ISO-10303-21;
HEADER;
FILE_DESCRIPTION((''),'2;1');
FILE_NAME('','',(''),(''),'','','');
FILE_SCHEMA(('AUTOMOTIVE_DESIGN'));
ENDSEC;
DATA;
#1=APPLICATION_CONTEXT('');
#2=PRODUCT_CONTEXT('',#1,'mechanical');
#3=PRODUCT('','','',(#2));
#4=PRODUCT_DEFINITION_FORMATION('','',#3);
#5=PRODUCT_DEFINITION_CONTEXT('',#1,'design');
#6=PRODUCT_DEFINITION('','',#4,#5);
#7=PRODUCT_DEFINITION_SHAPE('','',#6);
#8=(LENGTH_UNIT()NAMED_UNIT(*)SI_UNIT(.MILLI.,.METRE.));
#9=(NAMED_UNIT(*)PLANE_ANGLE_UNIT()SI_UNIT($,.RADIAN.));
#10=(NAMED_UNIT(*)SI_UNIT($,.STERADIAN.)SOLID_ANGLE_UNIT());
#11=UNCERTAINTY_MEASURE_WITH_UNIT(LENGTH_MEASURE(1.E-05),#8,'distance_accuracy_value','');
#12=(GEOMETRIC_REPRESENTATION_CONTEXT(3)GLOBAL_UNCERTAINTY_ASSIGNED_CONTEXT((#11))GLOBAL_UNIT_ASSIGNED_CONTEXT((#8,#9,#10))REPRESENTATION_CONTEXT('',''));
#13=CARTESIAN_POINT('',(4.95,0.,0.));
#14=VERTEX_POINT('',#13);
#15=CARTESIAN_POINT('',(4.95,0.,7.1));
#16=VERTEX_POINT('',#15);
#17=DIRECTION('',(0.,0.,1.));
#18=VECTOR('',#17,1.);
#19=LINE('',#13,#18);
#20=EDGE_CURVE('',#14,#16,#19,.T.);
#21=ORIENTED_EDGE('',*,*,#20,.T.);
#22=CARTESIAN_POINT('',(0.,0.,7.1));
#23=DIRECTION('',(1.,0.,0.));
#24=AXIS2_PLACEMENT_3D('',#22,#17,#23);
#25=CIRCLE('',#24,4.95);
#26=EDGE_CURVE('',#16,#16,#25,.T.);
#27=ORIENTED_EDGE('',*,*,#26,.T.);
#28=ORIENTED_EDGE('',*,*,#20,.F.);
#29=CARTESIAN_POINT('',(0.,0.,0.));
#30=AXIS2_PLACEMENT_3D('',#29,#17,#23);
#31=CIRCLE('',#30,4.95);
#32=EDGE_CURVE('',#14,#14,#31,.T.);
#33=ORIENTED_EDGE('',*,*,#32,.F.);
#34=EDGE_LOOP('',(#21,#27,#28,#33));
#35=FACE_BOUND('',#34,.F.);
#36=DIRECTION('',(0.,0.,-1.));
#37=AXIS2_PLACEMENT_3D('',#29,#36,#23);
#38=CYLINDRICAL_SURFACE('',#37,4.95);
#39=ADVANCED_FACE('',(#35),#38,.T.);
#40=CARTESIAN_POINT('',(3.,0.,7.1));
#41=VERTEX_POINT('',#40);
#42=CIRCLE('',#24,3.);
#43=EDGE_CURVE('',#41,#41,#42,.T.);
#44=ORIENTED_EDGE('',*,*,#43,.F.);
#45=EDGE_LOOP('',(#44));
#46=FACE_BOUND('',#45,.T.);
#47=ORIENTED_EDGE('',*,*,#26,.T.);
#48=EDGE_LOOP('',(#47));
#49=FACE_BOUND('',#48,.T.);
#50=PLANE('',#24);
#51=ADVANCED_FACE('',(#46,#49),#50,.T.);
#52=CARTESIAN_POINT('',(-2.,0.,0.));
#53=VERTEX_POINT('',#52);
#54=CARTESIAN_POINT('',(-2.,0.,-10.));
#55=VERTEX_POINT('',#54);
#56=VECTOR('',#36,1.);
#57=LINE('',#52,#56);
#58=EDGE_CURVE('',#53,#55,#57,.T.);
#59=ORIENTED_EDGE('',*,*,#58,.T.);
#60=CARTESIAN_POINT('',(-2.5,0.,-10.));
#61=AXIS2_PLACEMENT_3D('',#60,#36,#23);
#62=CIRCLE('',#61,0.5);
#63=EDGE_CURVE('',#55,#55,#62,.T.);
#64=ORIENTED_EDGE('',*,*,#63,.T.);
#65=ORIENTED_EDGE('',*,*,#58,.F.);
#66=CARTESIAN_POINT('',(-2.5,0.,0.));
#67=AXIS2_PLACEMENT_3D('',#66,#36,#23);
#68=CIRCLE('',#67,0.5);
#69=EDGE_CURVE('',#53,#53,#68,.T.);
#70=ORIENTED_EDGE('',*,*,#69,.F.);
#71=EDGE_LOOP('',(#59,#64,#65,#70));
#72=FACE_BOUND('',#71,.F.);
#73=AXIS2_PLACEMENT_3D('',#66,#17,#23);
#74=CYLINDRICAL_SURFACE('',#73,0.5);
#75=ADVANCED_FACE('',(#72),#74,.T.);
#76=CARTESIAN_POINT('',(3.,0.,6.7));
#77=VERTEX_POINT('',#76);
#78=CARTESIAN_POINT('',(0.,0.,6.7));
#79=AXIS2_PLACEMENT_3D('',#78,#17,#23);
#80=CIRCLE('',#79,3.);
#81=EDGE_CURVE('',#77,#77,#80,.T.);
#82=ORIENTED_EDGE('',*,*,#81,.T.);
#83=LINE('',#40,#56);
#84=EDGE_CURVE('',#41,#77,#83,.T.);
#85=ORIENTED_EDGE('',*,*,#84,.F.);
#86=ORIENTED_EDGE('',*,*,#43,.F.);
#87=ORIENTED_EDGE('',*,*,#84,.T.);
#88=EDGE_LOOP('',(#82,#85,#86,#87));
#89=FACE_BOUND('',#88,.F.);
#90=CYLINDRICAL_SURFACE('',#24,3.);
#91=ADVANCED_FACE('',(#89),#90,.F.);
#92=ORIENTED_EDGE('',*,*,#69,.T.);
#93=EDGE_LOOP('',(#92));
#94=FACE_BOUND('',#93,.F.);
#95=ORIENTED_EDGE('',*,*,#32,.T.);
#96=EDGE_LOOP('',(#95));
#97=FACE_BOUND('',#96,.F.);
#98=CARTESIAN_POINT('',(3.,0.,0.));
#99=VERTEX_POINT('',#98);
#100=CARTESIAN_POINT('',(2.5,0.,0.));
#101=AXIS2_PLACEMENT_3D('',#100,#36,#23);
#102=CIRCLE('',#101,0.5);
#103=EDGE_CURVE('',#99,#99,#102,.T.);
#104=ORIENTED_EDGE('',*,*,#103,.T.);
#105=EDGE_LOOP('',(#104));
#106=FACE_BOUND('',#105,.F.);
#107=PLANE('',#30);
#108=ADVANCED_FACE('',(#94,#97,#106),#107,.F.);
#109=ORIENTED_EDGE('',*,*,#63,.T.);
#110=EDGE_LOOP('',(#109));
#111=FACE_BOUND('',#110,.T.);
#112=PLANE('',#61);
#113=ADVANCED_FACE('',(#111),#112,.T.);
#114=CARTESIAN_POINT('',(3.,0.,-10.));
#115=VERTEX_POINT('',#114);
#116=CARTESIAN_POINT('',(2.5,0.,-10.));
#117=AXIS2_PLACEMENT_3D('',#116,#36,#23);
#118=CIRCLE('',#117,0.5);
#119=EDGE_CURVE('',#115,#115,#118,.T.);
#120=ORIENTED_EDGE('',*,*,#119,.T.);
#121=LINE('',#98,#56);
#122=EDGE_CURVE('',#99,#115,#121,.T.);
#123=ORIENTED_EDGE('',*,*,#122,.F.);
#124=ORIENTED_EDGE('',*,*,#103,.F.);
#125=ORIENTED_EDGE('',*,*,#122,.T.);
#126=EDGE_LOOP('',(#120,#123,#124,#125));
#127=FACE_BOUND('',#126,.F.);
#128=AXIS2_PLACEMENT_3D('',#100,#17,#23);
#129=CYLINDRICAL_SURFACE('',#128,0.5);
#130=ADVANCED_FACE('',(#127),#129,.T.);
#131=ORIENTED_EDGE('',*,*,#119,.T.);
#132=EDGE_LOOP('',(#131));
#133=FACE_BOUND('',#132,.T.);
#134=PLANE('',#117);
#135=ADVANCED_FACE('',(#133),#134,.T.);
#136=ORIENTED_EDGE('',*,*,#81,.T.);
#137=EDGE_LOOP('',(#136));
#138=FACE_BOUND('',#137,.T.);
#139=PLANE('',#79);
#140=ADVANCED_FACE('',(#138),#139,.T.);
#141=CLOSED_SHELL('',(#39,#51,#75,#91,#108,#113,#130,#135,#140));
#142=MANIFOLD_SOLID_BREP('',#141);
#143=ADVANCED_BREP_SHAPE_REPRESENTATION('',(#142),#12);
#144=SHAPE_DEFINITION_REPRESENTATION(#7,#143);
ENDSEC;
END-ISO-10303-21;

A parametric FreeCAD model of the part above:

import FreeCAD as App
import Part
import Sketcher

doc = App.newDocument("Part")
body = doc.addObject("PartDesign::Body", "Body")

# Sketch on XY plane
sketch1 = body.newObject("Sketcher::SketchObject", "Sketch")
sketch1.AttachmentSupport = (doc.getObject("XY_Plane"), [""])
sketch1.MapMode = "FlatFace"
sketch1.addGeometry(Part.Circle(App.Vector(0, 0, 0), App.Vector(0, 0, 1), 5), False)
sketch1.addConstraint([
    Sketcher.Constraint("Coincident", 0, 3, -1, 1),
    Sketcher.Constraint("Diameter", 0, 9.9),
])
pad1 = body.newObject("PartDesign::Pad", "Pad")
pad1.Profile = sketch1
pad1.Length = 7.1

# Sketch on XY plane
sketch2 = body.newObject("Sketcher::SketchObject", "Sketch001")
sketch2.AttachmentSupport = (doc.getObject("XY_Plane"), [""])
sketch2.MapMode = "FlatFace"
sketch2.addGeometry([
    Part.Circle(App.Vector(2.5, 0, 0), App.Vector(0, 0, 1), 0.5),
    Part.Circle(App.Vector(-2.5, 0, 0), App.Vector(0, 0, 1), 0.5),
], False)
sketch2.addConstraint([
    Sketcher.Constraint("Equal", 0, 1),
    Sketcher.Constraint("Symmetric", 0, 3, 1, 3, -1, 1),
    Sketcher.Constraint("PointOnObject", 0, 3, -1),
    Sketcher.Constraint("Diameter", 0, 1.0),
    Sketcher.Constraint("DistanceX", 1, 3, 0, 3, 5.0),
])
pad2 = body.newObject("PartDesign::Pad", "Pad001")
pad2.Profile = sketch2
pad2.Length = 10
pad2.Reversed = True

# Sketch on XY plane
sketch3 = body.newObject("Sketcher::SketchObject", "Sketch002")
sketch3.AttachmentSupport = (doc.getObject("XY_Plane"), [""])
sketch3.MapMode = "FlatFace"
sketch3.AttachmentOffset = App.Placement(App.Vector(0, 0, 7.1), App.Rotation())
sketch3.addGeometry(Part.Circle(App.Vector(0, 0, 0), App.Vector(0, 0, 1), 3), False)
sketch3.addConstraint([
    Sketcher.Constraint("Coincident", 0, 3, -1, 1),
    Sketcher.Constraint("Diameter", 0, 6.0),
])
pocket1 = body.newObject("PartDesign::Pocket", "Pocket")
pocket1.Profile = sketch3
pocket1.Length = 0.4

doc.recompute()
